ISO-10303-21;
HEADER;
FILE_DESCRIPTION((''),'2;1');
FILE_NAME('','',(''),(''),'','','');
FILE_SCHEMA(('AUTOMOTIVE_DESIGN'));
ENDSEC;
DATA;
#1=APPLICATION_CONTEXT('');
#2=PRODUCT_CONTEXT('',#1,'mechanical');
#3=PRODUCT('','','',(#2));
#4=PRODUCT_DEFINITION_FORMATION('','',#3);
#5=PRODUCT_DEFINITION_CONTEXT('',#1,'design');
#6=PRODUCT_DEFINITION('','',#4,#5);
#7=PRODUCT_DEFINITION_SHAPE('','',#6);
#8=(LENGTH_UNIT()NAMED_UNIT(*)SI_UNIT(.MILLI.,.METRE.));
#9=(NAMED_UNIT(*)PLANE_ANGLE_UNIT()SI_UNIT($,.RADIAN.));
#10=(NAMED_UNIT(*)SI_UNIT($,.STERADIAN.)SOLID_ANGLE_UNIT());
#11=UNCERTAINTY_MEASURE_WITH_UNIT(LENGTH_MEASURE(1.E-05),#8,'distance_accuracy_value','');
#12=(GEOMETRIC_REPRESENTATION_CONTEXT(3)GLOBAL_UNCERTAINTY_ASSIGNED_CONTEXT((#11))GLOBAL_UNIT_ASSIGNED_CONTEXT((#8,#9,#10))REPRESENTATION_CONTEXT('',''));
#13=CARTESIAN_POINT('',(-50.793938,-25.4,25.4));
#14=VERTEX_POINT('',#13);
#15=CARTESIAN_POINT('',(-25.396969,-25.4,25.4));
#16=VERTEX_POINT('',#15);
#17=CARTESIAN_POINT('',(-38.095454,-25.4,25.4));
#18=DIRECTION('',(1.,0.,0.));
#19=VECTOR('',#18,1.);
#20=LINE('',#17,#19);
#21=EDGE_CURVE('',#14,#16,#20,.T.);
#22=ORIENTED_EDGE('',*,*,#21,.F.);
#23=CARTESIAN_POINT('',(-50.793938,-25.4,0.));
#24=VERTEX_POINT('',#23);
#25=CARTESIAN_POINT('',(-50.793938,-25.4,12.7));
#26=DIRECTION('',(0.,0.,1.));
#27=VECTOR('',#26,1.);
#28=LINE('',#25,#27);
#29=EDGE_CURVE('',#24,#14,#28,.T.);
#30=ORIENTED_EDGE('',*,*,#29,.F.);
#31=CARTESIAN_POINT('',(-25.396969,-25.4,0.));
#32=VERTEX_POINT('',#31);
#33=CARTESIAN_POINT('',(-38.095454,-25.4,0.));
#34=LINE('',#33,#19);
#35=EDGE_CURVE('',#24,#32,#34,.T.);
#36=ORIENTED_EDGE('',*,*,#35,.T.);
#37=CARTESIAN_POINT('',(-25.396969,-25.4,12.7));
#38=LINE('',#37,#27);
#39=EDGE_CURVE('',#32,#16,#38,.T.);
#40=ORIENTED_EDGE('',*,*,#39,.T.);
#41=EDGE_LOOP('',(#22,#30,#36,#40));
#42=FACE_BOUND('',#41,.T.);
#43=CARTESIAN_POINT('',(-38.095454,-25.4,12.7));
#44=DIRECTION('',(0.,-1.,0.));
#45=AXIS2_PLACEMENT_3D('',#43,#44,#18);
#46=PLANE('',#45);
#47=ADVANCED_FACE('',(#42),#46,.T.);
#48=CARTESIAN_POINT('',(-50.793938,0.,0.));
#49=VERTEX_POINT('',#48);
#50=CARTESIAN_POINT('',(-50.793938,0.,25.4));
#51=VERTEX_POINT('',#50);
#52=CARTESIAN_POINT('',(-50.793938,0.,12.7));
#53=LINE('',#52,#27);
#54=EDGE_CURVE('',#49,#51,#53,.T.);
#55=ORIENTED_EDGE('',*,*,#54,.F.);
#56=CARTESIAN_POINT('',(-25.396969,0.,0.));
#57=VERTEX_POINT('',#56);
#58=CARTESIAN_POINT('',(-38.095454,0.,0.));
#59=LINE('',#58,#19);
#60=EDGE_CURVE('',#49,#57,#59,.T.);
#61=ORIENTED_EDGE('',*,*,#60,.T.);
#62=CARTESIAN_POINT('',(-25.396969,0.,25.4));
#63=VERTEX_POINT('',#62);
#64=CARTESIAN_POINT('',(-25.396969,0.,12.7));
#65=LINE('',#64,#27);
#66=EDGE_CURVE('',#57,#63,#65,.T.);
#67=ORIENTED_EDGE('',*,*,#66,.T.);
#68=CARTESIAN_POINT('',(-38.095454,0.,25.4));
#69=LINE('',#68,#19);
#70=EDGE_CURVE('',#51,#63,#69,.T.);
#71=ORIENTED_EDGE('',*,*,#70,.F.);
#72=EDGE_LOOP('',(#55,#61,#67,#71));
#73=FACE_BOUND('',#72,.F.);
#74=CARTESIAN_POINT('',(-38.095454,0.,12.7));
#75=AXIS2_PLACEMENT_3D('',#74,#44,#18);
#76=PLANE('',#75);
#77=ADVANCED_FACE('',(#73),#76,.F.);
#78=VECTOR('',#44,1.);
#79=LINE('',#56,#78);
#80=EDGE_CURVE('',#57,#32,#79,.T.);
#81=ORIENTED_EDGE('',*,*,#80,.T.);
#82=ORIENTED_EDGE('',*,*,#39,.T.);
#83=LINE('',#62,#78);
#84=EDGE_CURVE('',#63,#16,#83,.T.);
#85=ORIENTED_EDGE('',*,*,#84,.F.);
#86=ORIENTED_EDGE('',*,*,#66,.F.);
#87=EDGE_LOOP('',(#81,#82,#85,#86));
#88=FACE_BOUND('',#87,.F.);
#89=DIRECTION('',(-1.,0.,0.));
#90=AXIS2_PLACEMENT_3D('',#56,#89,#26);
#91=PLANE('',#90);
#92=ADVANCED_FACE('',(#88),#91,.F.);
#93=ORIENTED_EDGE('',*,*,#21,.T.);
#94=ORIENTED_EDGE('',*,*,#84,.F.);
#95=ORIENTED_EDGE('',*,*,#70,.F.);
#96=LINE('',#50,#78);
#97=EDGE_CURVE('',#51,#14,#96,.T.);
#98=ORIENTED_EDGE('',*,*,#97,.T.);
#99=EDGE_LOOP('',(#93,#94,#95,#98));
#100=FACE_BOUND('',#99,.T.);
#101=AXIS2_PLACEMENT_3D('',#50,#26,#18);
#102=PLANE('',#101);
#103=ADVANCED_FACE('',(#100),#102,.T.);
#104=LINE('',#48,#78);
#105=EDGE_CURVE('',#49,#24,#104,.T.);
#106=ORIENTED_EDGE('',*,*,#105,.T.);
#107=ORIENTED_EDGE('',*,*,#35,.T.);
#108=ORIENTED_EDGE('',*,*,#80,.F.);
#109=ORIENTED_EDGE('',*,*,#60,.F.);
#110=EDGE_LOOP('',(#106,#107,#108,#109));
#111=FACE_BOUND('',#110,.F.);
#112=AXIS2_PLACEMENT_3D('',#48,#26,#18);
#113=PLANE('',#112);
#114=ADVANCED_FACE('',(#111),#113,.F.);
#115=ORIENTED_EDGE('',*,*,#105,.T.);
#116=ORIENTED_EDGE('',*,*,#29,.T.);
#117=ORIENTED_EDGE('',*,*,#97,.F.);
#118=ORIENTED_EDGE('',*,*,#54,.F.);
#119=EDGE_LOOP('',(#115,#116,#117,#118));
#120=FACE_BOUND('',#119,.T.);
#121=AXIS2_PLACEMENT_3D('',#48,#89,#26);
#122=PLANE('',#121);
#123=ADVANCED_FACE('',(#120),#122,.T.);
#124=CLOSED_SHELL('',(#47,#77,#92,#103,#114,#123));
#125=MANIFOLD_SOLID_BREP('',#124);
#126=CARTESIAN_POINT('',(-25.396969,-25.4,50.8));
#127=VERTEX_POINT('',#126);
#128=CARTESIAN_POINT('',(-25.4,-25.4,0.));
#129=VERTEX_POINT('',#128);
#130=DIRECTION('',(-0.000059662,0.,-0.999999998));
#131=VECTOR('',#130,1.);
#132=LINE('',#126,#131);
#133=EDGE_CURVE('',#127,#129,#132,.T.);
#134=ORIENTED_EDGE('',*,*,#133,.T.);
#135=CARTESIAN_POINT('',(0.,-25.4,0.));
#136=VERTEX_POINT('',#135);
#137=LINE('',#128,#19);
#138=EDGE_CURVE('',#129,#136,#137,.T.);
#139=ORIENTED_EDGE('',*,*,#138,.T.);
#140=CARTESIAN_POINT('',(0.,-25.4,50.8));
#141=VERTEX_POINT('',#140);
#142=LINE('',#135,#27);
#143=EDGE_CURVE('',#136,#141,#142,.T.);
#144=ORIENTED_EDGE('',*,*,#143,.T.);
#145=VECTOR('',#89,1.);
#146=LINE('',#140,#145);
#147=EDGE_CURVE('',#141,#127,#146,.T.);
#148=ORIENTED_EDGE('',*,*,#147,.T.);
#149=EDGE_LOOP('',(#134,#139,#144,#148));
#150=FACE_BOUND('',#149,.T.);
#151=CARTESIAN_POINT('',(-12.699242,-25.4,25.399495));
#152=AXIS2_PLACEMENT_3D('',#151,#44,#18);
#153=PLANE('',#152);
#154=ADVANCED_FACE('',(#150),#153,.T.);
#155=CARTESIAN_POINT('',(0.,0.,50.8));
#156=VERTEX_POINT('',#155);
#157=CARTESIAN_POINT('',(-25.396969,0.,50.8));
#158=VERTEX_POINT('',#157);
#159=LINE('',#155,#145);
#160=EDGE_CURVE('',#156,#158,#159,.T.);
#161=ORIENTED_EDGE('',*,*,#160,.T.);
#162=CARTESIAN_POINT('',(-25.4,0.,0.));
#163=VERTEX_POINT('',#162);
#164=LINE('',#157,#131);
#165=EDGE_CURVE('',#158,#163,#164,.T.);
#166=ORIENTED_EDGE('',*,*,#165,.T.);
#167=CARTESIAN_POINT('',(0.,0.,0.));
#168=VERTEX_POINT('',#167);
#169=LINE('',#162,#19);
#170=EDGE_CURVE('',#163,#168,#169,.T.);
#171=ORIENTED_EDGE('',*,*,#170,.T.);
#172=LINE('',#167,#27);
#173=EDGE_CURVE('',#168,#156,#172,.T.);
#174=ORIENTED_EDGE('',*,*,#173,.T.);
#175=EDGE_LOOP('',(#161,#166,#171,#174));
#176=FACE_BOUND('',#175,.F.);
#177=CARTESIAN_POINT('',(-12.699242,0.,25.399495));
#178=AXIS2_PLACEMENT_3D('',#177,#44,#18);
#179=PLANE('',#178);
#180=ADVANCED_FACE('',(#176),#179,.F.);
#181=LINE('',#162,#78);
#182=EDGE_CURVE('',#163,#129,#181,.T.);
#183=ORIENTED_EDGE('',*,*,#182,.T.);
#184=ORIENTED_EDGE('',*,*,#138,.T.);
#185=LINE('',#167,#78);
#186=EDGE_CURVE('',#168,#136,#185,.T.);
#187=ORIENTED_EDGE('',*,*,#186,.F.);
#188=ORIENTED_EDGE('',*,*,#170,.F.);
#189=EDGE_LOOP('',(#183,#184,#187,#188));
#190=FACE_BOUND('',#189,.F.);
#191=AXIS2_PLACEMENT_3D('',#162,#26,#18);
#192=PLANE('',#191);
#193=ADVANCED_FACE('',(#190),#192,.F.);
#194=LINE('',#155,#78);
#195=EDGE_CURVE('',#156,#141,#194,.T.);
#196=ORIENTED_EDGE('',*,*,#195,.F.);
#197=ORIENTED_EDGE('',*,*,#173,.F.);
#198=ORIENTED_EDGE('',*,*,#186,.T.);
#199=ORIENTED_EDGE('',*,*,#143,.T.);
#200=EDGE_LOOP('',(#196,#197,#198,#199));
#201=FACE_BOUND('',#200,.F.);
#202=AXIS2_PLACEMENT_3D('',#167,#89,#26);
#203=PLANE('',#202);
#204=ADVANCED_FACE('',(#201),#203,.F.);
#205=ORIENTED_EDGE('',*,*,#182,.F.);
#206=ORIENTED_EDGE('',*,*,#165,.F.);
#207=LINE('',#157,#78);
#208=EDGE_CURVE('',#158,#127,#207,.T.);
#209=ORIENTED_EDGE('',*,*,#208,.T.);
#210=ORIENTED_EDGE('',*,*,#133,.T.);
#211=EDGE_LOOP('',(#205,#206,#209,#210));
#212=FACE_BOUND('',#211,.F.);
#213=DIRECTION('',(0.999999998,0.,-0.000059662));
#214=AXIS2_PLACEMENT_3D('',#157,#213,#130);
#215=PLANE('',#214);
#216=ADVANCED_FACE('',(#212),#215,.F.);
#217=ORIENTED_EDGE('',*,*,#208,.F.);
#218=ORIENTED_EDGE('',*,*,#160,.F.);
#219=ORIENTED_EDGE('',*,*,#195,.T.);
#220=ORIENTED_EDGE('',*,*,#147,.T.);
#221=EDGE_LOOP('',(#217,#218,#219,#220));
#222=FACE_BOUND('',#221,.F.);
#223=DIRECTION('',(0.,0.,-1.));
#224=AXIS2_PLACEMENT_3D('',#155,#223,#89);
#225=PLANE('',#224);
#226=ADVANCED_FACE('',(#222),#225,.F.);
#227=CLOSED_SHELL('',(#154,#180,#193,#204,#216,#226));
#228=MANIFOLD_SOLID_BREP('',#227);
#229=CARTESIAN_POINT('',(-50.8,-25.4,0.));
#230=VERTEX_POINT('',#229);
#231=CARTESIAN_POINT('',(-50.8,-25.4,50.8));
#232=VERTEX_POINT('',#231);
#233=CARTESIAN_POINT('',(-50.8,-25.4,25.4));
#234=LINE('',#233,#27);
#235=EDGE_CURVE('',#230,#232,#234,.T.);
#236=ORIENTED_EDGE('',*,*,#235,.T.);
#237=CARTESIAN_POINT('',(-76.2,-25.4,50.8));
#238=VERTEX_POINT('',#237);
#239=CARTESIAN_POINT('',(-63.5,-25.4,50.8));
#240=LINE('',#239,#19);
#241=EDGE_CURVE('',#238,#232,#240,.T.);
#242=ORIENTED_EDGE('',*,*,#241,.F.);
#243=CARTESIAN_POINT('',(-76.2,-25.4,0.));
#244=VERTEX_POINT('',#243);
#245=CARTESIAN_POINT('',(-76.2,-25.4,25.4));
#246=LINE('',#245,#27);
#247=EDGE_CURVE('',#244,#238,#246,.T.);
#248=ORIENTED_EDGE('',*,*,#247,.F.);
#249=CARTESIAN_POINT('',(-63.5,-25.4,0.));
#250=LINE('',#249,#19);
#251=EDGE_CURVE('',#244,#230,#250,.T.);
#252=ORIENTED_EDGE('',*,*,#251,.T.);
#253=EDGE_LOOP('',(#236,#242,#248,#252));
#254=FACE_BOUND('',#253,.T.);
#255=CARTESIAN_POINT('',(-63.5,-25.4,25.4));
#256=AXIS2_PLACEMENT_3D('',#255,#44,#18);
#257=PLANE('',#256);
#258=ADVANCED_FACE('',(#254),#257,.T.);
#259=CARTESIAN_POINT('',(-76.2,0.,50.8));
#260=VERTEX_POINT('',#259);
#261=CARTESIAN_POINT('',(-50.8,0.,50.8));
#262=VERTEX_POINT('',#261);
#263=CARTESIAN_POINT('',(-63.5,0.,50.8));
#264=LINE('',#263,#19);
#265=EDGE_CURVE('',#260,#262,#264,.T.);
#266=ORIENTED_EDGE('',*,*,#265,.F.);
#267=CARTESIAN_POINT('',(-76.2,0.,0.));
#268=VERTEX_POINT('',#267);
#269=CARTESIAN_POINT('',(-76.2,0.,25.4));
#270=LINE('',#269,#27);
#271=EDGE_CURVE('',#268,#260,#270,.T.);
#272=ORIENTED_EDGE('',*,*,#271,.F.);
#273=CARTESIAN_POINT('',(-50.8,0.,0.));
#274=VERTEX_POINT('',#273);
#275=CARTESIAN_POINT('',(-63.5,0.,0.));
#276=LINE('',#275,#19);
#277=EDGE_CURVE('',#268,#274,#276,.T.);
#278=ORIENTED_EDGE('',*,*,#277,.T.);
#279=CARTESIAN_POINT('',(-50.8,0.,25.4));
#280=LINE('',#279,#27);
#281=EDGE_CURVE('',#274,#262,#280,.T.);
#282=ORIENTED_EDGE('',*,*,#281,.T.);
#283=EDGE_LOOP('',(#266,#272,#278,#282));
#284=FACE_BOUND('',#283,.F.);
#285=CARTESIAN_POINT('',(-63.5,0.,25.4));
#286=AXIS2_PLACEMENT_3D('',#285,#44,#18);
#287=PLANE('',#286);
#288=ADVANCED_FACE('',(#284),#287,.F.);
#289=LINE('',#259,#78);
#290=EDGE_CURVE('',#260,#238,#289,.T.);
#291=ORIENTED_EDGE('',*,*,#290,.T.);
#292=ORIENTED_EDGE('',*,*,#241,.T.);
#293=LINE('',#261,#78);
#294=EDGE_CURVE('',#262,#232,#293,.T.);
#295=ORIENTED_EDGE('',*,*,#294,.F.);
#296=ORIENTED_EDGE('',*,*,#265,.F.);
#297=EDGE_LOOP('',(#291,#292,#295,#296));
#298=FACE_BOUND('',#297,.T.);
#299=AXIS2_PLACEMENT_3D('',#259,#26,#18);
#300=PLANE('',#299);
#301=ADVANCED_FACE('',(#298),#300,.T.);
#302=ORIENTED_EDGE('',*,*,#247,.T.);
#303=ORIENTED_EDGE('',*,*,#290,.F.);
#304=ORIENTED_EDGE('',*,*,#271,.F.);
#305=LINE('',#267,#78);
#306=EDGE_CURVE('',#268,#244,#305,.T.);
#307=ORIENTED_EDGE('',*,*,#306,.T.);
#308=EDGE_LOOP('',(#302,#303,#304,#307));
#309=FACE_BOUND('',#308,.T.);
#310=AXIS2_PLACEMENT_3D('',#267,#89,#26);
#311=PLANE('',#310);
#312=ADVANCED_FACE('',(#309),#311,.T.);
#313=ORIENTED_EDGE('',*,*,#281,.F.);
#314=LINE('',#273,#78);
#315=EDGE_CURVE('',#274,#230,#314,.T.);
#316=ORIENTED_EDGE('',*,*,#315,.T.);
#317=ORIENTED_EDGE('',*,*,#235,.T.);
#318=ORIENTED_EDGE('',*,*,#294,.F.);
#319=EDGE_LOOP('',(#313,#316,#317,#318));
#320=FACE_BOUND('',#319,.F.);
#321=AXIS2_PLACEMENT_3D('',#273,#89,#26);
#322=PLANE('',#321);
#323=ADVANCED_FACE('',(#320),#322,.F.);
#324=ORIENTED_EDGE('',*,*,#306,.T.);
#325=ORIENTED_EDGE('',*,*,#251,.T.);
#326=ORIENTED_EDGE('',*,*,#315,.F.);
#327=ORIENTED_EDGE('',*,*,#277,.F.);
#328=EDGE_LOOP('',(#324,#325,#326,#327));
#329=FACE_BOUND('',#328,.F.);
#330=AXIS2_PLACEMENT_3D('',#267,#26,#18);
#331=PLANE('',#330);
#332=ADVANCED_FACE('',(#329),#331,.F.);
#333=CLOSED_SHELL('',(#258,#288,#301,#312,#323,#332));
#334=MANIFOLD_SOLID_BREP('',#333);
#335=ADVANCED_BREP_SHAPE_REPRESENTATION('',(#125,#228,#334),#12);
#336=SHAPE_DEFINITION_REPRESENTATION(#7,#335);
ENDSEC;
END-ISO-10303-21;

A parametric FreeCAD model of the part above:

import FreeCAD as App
import Part
import Sketcher

V = App.Vector
Q = App.Units.Quantity


def add_polygon(sketch, points):
    """Adds a closed chain of lines whose ends are joined by coincident constraints."""
    first, n = sketch.GeometryCount, len(points)
    for a, b in zip(points, points[1:] + points[:1]):
        sketch.addGeometry(Part.LineSegment(App.Vector(*a, 0), App.Vector(*b, 0)), False)
    for i in range(n):
        sketch.addConstraint(Sketcher.Constraint("Coincident", first + i, 2, first + (i + 1) % n, 1))

doc = App.newDocument("Part")
body = doc.addObject("PartDesign::Body", "Body")

# Sketch on XZ plane
sketch1 = doc.addObject("Sketcher::SketchObject", "Sketch")
body.addObject(sketch1)
sketch1.AttachmentSupport = (doc.XZ_Plane, [""])
sketch1.MapMode = "FlatFace"
add_polygon(sketch1, [(-51, 25), (-51, 0), (-25, 0), (-25, 25)])  # lines 0-3
sketch1.addConstraint(Sketcher.Constraint("Vertical", 0))
sketch1.addConstraint(Sketcher.Constraint("Horizontal", 1))
sketch1.addConstraint(Sketcher.Constraint("Vertical", 2))
sketch1.addConstraint(Sketcher.Constraint("Horizontal", 3))
sketch1.addConstraint(Sketcher.Constraint("PointOnObject", 0, 2, -1))
sketch1.addConstraint(Sketcher.Constraint("DistanceY", 0, 2, 0, 1, Q("1 in")))
sketch1.addConstraint(Sketcher.Constraint("DistanceX", 1, 1, 1, 2, Q("25.396969 mm")))
sketch1.addConstraint(Sketcher.Constraint("DistanceX", 0, 2, -1, 1, Q("50.793938 mm")))
pad1 = doc.addObject("PartDesign::Pad", "Pad")
body.addObject(pad1)
pad1.Profile = sketch1
pad1.Length = Q("1 in")
body2 = doc.addObject("PartDesign::Body", "Body001")

# Sketch on XZ plane
sketch2 = doc.addObject("Sketcher::SketchObject", "Sketch001")
body2.addObject(sketch2)
sketch2.AttachmentSupport = (doc.getObject("XZ_Plane001"), [""])
sketch2.MapMode = "FlatFace"
add_polygon(sketch2, [(-76, 51), (-76, 0), (-51, 0), (-51, 51)])  # lines 0-3
sketch2.addConstraint(Sketcher.Constraint("Vertical", 0))
sketch2.addConstraint(Sketcher.Constraint("Horizontal", 1))
sketch2.addConstraint(Sketcher.Constraint("Vertical", 2))
sketch2.addConstraint(Sketcher.Constraint("Horizontal", 3))
sketch2.addConstraint(Sketcher.Constraint("PointOnObject", 0, 2, -1))
sketch2.addConstraint(Sketcher.Constraint("DistanceX", 1, 1, 1, 2, Q("1 in")))
sketch2.addConstraint(Sketcher.Constraint("DistanceY", 0, 2, 0, 1, Q("2 in")))
sketch2.addConstraint(Sketcher.Constraint("DistanceX", 0, 2, -1, 1, Q("3 in")))
pad2 = doc.addObject("PartDesign::Pad", "Pad001")
body2.addObject(pad2)
pad2.Profile = sketch2
pad2.Length = Q("1 in")
body3 = doc.addObject("PartDesign::Body", "Body002")

# Sketch on XZ plane
sketch3 = doc.addObject("Sketcher::SketchObject", "Sketch002")
body3.addObject(sketch3)
sketch3.AttachmentSupport = (doc.getObject("XZ_Plane002"), [""])
sketch3.MapMode = "FlatFace"
add_polygon(sketch3, [(-25, 0), (0, 0), (0, 51), (-25, 51)])  # lines 0-3
sketch3.addConstraint(Sketcher.Constraint("Horizontal", 0))
sketch3.addConstraint(Sketcher.Constraint("Vertical", 1))
sketch3.addConstraint(Sketcher.Constraint("Horizontal", 2))
sketch3.addConstraint(Sketcher.Constraint("Coincident", 0, 2, -1, 1))
sketch3.addConstraint(Sketcher.Constraint("DistanceX", 0, 1, 0, 2, Q("1 in")))
sketch3.addConstraint(Sketcher.Constraint("DistanceY", 1, 1, 1, 2, Q("2 in")))
sketch3.addConstraint(Sketcher.Constraint("DistanceX", 2, 2, 2, 1, Q("25.396969 mm")))
pad3 = doc.addObject("PartDesign::Pad", "Pad002")
body3.addObject(pad3)
pad3.Profile = sketch3
pad3.Length = Q("1 in")

doc.recompute()
